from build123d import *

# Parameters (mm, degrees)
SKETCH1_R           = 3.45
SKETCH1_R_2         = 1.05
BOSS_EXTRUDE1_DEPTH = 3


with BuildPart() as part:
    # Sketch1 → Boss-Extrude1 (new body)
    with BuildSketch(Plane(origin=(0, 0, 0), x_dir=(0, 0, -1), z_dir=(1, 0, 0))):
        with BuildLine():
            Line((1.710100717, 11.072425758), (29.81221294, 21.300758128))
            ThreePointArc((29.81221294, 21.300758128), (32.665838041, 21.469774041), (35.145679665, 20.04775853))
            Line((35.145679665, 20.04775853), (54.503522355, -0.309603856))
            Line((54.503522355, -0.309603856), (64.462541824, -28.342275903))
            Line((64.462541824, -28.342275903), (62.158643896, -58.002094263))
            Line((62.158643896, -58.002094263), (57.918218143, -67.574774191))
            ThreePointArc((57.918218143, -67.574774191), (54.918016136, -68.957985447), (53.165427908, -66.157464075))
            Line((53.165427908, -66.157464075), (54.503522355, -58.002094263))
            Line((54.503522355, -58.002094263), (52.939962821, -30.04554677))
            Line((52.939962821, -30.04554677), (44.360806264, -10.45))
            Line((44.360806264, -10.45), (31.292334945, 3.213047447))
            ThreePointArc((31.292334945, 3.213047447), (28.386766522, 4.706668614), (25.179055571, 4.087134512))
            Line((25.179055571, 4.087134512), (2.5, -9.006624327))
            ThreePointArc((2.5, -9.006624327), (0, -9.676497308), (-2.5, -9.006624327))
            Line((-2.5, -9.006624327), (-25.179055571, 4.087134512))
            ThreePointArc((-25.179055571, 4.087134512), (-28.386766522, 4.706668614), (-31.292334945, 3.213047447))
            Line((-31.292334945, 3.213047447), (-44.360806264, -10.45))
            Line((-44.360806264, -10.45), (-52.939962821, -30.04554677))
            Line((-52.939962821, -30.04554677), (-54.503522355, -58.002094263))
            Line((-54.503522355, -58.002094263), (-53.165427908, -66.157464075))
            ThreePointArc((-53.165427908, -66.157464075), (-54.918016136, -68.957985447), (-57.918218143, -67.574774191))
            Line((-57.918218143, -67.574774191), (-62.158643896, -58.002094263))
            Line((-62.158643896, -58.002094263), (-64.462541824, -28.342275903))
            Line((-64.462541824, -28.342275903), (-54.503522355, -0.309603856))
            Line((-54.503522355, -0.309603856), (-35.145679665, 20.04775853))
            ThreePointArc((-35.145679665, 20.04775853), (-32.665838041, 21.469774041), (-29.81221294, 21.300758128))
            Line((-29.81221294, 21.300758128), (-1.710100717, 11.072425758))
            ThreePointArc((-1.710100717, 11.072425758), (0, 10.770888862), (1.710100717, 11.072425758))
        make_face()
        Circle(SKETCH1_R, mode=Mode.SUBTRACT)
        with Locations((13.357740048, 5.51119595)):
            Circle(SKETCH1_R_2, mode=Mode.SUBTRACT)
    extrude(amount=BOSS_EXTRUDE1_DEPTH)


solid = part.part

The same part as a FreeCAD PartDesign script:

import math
import FreeCAD as App
import Part
import Sketcher
Q = App.Units.Quantity

doc = App.newDocument("Part")
body = doc.addObject("PartDesign::Body", "Body")

sketch1 = doc.addObject("Sketcher::SketchObject", "Sketch")
body.addObject(sketch1)
sketch1.AttachmentSupport = (doc.YZ_Plane, [""])
sketch1.MapMode = "FlatFace"
sketch1.addGeometry([
    Part.LineSegment(App.Vector(21.300758, -29.812213, 0), App.Vector(11.072426, -1.710101, 0)),
    Part.ArcOfCircle(Part.Circle(App.Vector(15.770889, 0, 0), App.Vector(0, 0, 1), 5), math.radians(160), math.radians(200)),
    Part.LineSegment(App.Vector(11.072426, 1.710101, 0), App.Vector(21.300758, 29.812213, 0)),
    Part.ArcOfCircle(Part.Circle(App.Vector(16.602295, 31.522314, 0), App.Vector(0, 0, 1), 5), math.radians(-20), math.radians(46.441669)),
    Part.LineSegment(App.Vector(20.047759, 35.14568, 0), App.Vector(-0.309604, 54.503522, 0)),
    Part.LineSegment(App.Vector(-0.309604, 54.503522, 0), App.Vector(-28.342276, 64.462542, 0)),
    Part.LineSegment(App.Vector(-28.342276, 64.462542, 0), App.Vector(-58.002094, 62.158644, 0)),
    Part.LineSegment(App.Vector(-58.002094, 62.158644, 0), App.Vector(-67.574774, 57.918218, 0)),
    Part.ArcOfCircle(Part.Circle(App.Vector(-66.56224, 55.632442, 0), App.Vector(0, 0, 1), 2.5), math.radians(113.891984), math.radians(279.317798)),
    Part.LineSegment(App.Vector(-66.157464, 53.165428, 0), App.Vector(-58.002094, 54.503522, 0)),
    Part.LineSegment(App.Vector(-58.002094, 54.503522, 0), App.Vector(-30.045547, 52.939963, 0)),
    Part.LineSegment(App.Vector(-30.045547, 52.939963, 0), App.Vector(-10.45, 44.360806, 0)),
    Part.LineSegment(App.Vector(-10.45, 44.360806, 0), App.Vector(3.213047, 31.292335, 0)),
    Part.ArcOfCircle(Part.Circle(App.Vector(-0.242993, 27.679056, 0), App.Vector(0, 0, 1), 5), math.radians(-30), math.radians(46.274192)),
    Part.LineSegment(App.Vector(4.087135, 25.179056, 0), App.Vector(-9.006624, 2.5, 0)),
    Part.ArcOfCircle(Part.Circle(App.Vector(-4.676497, 0, 0), App.Vector(0, 0, 1), 5), math.radians(150), math.radians(210)),
    Part.LineSegment(App.Vector(-9.006624, -2.5, 0), App.Vector(4.087135, -25.179056, 0)),
    Part.ArcOfCircle(Part.Circle(App.Vector(-0.242993, -27.679056, 0), App.Vector(0, 0, 1), 5), math.radians(-46.274192), math.radians(30)),
    Part.LineSegment(App.Vector(3.213047, -31.292335, 0), App.Vector(-10.45, -44.360806, 0)),
    Part.LineSegment(App.Vector(-10.45, -44.360806, 0), App.Vector(-30.045547, -52.939963, 0)),
    Part.LineSegment(App.Vector(-30.045547, -52.939963, 0), App.Vector(-58.002094, -54.503522, 0)),
    Part.LineSegment(App.Vector(-58.002094, -54.503522, 0), App.Vector(-66.157464, -53.165428, 0)),
    Part.ArcOfCircle(Part.Circle(App.Vector(-66.56224, -55.632442, 0), App.Vector(0, 0, 1), 2.5), math.radians(80.682202), math.radians(246.108016)),
    Part.LineSegment(App.Vector(-67.574774, -57.918218, 0), App.Vector(-58.002094, -62.158644, 0)),
    Part.LineSegment(App.Vector(-58.002094, -62.158644, 0), App.Vector(-28.342276, -64.462542, 0)),
    Part.LineSegment(App.Vector(-28.342276, -64.462542, 0), App.Vector(-0.309604, -54.503522, 0)),
    Part.LineSegment(App.Vector(-0.309604, -54.503522, 0), App.Vector(20.047759, -35.14568, 0)),
    Part.ArcOfCircle(Part.Circle(App.Vector(16.602295, -31.522314, 0), App.Vector(0, 0, 1), 5), math.radians(-46.441669), math.radians(20)),
    Part.Circle(App.Vector(0, 0, 0), App.Vector(0, 0, 1), 3.45),
    Part.Circle(App.Vector(5.511196, -13.35774, 0), App.Vector(0, 0, 1), 1.05),
], False)
sketch1.addConstraint([
    Sketcher.Constraint("Tangent", 0, 2, 1, 2),
    Sketcher.Constraint("Tangent", 1, 1, 2, 1),
    Sketcher.Constraint("Tangent", 2, 2, 3, 1),
    Sketcher.Constraint("Tangent", 3, 2, 4, 1),
    Sketcher.Constraint("Coincident", 4, 2, 5, 1),
    Sketcher.Constraint("Coincident", 5, 2, 6, 1),
    Sketcher.Constraint("Coincident", 6, 2, 7, 1),
    Sketcher.Constraint("Tangent", 7, 2, 8, 1),
    Sketcher.Constraint("Tangent", 8, 2, 9, 1),
    Sketcher.Constraint("Coincident", 9, 2, 10, 1),
    Sketcher.Constraint("Coincident", 10, 2, 11, 1),
    Sketcher.Constraint("Coincident", 11, 2, 12, 1),
    Sketcher.Constraint("Tangent", 12, 2, 13, 2),
    Sketcher.Constraint("Tangent", 13, 1, 14, 1),
    Sketcher.Constraint("Tangent", 14, 2, 15, 1),
    Sketcher.Constraint("Tangent", 15, 2, 16, 1),
    Sketcher.Constraint("Tangent", 16, 2, 17, 2),
    Sketcher.Constraint("Tangent", 17, 1, 18, 1),
    Sketcher.Constraint("Coincident", 18, 2, 19, 1),
    Sketcher.Constraint("Coincident", 19, 2, 20, 1),
    Sketcher.Constraint("Coincident", 20, 2, 21, 1),
    Sketcher.Constraint("Tangent", 21, 2, 22, 1),
    Sketcher.Constraint("Tangent", 22, 2, 23, 1),
    Sketcher.Constraint("Coincident", 23, 2, 24, 1),
    Sketcher.Constraint("Coincident", 24, 2, 25, 1),
    Sketcher.Constraint("Coincident", 25, 2, 26, 1),
    Sketcher.Constraint("Tangent", 26, 2, 27, 1),
    Sketcher.Constraint("Tangent", 27, 2, 0, 1),
    Sketcher.Constraint("Coincident", 28, 3, -1, 1),
    Sketcher.Constraint("Equal", 1, 3),
    Sketcher.Constraint("Equal", 3, 13),
    Sketcher.Constraint("Equal", 13, 15),
    Sketcher.Constraint("Equal", 15, 17),
    Sketcher.Constraint("Equal", 8, 22),
    Sketcher.Constraint("Equal", 17, 27),
    Sketcher.Constraint("Symmetric", 13, 3, 17, 3, -1),
    Sketcher.Constraint("Symmetric", 8, 3, 22, 3, -1),
    Sketcher.Constraint("Symmetric", 3, 3, 27, 3, -1),
    Sketcher.Constraint("Symmetric", 11, 2, 18, 2, -1),
    Sketcher.Constraint("Symmetric", 10, 2, 19, 2, -1),
    Sketcher.Constraint("Symmetric", 9, 2, 20, 2, -1),
    Sketcher.Constraint("Symmetric", 6, 2, 23, 2, -1),
    Sketcher.Constraint("Symmetric", 5, 2, 24, 2, -1),
    Sketcher.Constraint("Symmetric", 4, 2, 25, 2, -1),
    Sketcher.Constraint("PointOnObject", 1, 3, -1),
    Sketcher.Constraint("PointOnObject", 15, 3, -1),
    Sketcher.Constraint("Horizontal", 4, 2, 9, 2),
    Sketcher.Constraint("Vertical", 6, 2, 9, 2),
    Sketcher.Constraint("Equal", 5, 6),
    Sketcher.Constraint("Radius", 1, Q("5 mm")),
    Sketcher.Constraint("Diameter", 28, Q("6.9 mm")),
    Sketcher.Constraint("Diameter", 29, Q("2.1 mm")),
    Sketcher.Constraint("Radius", 8, Q("2.5 mm")),
    Sketcher.Constraint("Angle", 0, Q("110 deg")),
    Sketcher.Constraint("Angle", 14, Q("-120 deg")),
    Sketcher.Constraint("DistanceX", 11, 2, -1, 1, Q("10.45 mm")),
    Sketcher.Constraint("DistanceX", 3, 2, 2, 2, Q("1.253 mm")),
    Sketcher.Constraint("DistanceX", 29, 3, 27, 3, Q("11.091099 mm")),
    Sketcher.Constraint("DistanceX", 4, 2, 3, 3, Q("16.911899 mm")),
    Sketcher.Constraint("DistanceY", 8, 3, 5, 2, Q("8.8301 mm")),
    Sketcher.Constraint("DistanceX", 6, 2, 13, 3, Q("57.759102 mm")),
    Sketcher.Constraint("DistanceX", 7, 2, 5, 2, Q("39.232498 mm")),
    Sketcher.Constraint("DistanceX", -1, 1, 1, 3, Q("15.770889 mm")),
    Sketcher.Constraint("DistanceX", 8, 3, -1, 1, Q("66.56224 mm")),
    Sketcher.Constraint("DistanceY", -1, 1, 8, 3, Q("55.632442 mm")),
    Sketcher.Constraint("DistanceY", 29, 3, -1, 1, Q("13.35774 mm")),
    Sketcher.Constraint("DistanceX", -1, 1, 2, 2, Q("21.300758 mm")),
    Sketcher.Constraint("DistanceY", -1, 1, 7, 2, Q("57.918218 mm")),
    Sketcher.Constraint("DistanceY", 13, 3, 3, 3, Q("3.843258 mm")),
    Sketcher.Constraint("DistanceX", 10, 2, 5, 2, Q("1.703271 mm")),
    Sketcher.Constraint("DistanceY", 10, 2, 5, 2, Q("11.522579 mm")),
    Sketcher.Constraint("DistanceY", 13, 3, 11, 2, Q("16.681751 mm")),
])
pad1 = doc.addObject("PartDesign::Pad", "Pad")
body.addObject(pad1)
pad1.Profile = sketch1
pad1.Length = 3

doc.recompute()
